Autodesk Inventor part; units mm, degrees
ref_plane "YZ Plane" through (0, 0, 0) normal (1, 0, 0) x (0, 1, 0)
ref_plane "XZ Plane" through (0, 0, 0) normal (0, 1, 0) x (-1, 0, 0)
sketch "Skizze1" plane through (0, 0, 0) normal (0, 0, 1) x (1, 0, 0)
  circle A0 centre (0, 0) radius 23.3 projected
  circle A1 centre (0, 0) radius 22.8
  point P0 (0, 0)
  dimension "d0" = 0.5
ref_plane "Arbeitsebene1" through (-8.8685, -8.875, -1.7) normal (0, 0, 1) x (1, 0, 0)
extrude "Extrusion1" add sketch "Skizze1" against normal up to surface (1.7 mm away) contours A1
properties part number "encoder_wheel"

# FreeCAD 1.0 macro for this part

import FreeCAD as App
import Part
import Sketcher

V = App.Vector
Q = App.Units.Quantity

doc = App.newDocument("Part")
params = doc.addObject("Spreadsheet::Sheet", "Params")
for row, (alias, value) in enumerate([
    ("sketch1_diameter", "45.6 mm"),
    ("pad1_length", "1.7 mm"),
], start=1):
    params.set(f"A{row}", alias)
    params.set(f"B{row}", "=" + value)
    params.setAlias(f"B{row}", alias)

body = doc.addObject("PartDesign::Body", "Body")

# Sketch on XY plane
sketch1 = body.newObject("Sketcher::SketchObject", "Sketch")
sketch1.AttachmentSupport = (doc.getObject("XY_Plane"), [""])
sketch1.MapMode = "FlatFace"
sketch1.addGeometry(Part.Circle(V(0, 0, 0), V(0, 0, 1), 23), False)
sketch1.addConstraint([
    Sketcher.Constraint("Coincident", 0, 3, -1, 1),
    Sketcher.Constraint("Diameter", 0, Q("45.6 mm")),
])
sketch1.setExpression("Constraints[1]", "Params.sketch1_diameter")
pad1 = body.newObject("PartDesign::Pad", "Pad")
pad1.Profile = sketch1
pad1.setExpression("Length", "Params.pad1_length")
pad1.Reversed = True

doc.recompute()
